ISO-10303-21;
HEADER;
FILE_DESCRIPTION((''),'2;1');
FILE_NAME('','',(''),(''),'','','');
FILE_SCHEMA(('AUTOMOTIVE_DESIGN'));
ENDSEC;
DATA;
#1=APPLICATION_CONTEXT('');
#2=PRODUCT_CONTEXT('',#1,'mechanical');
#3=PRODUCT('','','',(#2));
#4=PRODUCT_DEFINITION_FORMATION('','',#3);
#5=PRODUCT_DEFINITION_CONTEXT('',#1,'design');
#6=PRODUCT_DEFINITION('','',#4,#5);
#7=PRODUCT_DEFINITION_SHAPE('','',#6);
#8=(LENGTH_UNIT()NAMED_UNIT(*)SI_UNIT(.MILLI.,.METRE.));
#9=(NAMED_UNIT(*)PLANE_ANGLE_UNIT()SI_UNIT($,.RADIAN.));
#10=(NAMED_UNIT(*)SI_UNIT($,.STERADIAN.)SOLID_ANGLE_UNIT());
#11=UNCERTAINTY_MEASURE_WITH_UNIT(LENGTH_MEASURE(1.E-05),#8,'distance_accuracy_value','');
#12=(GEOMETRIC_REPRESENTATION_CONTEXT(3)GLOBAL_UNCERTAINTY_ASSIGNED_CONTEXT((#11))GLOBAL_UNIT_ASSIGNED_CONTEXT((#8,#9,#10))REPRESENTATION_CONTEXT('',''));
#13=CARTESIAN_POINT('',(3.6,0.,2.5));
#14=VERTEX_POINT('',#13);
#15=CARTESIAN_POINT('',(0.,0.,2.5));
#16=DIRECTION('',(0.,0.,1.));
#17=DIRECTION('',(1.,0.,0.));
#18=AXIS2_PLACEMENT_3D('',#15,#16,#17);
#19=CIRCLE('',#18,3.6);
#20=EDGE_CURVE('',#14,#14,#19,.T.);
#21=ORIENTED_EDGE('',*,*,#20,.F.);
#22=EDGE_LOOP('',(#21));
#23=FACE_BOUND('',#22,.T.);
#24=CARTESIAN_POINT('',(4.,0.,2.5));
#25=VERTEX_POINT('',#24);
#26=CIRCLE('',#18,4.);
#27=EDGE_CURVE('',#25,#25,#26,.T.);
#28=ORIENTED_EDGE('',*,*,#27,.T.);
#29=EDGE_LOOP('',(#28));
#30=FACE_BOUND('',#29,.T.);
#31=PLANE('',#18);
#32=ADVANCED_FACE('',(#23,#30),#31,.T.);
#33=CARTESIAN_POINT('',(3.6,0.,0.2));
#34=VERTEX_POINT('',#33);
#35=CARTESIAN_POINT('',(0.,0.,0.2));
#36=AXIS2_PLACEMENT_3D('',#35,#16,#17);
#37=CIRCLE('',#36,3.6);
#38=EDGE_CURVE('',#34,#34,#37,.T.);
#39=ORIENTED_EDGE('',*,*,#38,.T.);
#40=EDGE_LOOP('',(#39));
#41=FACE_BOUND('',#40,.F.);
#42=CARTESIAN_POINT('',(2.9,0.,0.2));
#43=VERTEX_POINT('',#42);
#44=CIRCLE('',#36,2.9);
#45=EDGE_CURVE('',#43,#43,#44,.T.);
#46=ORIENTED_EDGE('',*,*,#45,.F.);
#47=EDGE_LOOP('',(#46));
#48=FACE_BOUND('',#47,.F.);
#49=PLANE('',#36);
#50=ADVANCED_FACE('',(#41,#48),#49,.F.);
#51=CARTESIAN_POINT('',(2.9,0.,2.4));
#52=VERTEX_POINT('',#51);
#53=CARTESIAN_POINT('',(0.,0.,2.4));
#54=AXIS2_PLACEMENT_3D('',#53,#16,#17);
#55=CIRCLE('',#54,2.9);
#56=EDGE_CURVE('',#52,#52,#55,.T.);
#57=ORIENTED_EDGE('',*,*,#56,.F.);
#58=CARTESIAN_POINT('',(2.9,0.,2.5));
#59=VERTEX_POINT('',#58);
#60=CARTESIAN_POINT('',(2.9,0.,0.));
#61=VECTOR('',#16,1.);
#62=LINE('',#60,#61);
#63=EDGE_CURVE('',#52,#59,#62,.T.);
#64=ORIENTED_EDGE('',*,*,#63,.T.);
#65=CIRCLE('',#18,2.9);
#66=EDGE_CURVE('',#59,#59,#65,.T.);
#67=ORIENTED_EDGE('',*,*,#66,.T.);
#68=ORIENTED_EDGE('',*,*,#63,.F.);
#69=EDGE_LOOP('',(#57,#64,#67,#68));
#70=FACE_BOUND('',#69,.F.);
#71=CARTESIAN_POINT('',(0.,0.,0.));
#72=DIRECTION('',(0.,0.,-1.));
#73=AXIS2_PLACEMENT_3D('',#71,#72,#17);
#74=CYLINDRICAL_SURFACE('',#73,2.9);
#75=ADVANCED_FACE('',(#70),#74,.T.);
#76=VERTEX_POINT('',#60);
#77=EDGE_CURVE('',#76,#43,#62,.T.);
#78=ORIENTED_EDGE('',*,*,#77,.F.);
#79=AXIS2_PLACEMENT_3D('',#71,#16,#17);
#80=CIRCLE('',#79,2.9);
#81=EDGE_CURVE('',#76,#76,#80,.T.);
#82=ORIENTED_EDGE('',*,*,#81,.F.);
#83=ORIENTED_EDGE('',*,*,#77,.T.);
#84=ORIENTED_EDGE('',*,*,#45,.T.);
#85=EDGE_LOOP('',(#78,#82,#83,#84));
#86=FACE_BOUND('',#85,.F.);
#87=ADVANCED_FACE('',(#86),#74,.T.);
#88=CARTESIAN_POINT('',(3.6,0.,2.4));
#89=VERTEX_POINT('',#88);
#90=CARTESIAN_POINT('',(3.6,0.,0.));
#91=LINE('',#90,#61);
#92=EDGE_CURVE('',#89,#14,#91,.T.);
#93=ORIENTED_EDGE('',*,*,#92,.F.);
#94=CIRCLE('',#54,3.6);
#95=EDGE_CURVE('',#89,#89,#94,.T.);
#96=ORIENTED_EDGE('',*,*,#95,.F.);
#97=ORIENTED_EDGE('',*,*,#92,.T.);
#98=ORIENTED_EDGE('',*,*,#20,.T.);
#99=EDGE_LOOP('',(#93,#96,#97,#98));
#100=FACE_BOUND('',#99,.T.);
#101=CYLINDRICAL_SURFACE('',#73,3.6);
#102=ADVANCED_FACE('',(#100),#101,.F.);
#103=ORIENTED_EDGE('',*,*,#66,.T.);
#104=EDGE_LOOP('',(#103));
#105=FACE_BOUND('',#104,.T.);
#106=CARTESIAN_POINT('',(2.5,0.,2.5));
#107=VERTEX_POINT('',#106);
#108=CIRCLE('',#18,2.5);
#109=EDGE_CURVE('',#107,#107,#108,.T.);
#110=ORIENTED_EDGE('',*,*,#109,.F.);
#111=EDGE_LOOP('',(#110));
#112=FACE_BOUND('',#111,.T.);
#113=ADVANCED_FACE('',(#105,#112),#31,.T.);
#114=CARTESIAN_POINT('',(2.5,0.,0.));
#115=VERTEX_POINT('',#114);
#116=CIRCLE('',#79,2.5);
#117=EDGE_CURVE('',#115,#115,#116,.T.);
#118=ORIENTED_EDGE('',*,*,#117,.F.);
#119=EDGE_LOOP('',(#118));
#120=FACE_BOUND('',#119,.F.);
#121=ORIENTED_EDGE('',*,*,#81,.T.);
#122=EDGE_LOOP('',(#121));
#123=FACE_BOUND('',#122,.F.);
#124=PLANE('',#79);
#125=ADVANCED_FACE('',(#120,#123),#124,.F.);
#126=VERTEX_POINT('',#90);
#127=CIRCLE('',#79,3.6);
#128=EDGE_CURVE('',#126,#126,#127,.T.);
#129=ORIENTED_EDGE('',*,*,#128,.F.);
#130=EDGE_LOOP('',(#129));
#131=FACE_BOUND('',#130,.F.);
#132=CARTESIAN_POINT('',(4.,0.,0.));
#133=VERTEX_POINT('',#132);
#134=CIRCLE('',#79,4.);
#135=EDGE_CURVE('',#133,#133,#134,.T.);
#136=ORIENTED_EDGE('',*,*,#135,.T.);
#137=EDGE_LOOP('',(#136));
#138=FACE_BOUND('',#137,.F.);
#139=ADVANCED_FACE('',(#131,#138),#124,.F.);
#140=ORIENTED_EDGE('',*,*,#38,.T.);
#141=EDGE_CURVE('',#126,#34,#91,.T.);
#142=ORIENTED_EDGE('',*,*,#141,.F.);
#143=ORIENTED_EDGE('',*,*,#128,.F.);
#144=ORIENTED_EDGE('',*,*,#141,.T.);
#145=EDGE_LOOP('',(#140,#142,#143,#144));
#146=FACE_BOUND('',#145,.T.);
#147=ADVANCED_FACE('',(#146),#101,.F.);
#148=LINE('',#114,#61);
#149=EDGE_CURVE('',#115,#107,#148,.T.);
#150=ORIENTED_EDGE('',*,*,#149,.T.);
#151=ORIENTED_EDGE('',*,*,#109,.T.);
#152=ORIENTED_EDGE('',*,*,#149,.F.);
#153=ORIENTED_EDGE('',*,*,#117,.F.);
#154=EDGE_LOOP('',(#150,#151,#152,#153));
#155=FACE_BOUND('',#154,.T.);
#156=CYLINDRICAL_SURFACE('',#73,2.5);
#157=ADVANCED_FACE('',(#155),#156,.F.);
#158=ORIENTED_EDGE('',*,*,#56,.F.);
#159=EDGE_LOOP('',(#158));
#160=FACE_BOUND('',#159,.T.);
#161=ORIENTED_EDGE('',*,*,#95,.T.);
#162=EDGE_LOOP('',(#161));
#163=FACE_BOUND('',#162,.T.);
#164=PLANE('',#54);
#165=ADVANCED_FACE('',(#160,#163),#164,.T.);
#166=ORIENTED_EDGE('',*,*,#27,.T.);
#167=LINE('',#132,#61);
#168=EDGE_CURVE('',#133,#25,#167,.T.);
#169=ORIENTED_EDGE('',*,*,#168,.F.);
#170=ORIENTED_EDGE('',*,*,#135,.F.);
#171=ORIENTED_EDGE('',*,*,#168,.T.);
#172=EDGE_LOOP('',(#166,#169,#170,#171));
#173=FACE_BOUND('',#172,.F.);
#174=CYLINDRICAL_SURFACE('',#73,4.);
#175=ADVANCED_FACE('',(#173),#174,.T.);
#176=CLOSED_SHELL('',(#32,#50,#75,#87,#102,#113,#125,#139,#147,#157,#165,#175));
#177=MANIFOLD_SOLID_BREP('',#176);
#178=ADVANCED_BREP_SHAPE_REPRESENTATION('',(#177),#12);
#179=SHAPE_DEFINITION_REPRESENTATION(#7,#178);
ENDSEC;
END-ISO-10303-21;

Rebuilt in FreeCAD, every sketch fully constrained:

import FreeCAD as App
import Part
import Sketcher

doc = App.newDocument("Part")
body = doc.addObject("PartDesign::Body", "Body")
body.AllowCompound = True

sketch1 = body.newObject("Sketcher::SketchObject", "Sketch")
sketch1.AttachmentSupport = (doc.getObject("XY_Plane"), [""])
sketch1.MapMode = "FlatFace"
sketch1.addGeometry([
    Part.Circle(App.Vector(0, 0, 0), App.Vector(0, 0, 1), 4),
    Part.Circle(App.Vector(0, 0, 0), App.Vector(0, 0, 1), 3.6),
    Part.Circle(App.Vector(0, 0, 0), App.Vector(0, 0, 1), 2.9),
    Part.Circle(App.Vector(0, 0, 0), App.Vector(0, 0, 1), 2.5),
], False)
sketch1.addConstraint([
    Sketcher.Constraint("Coincident", 0, 3, -1, 1),
    Sketcher.Constraint("Coincident", 1, 3, -1, 1),
    Sketcher.Constraint("Coincident", 2, 3, -1, 1),
    Sketcher.Constraint("Coincident", 3, 3, -1, 1),
    Sketcher.Constraint("Diameter", 0, 8.0),
    Sketcher.Constraint("Diameter", 3, 5.0),
    Sketcher.Constraint("Diameter", 1, 7.2),
    Sketcher.Constraint("Diameter", 2, 5.8),
])
pad1 = body.newObject("PartDesign::Pad", "Pad")
pad1.Profile = sketch1
pad1.Length = 2.5

sketch2 = body.newObject("Sketcher::SketchObject", "Sketch001")
sketch2.AttachmentSupport = (doc.getObject("XY_Plane"), [""])
sketch2.MapMode = "FlatFace"
sketch2.AttachmentOffset = App.Placement(App.Vector(0, 0, 0.2), App.Rotation())
sketch2.addGeometry([
    Part.Circle(App.Vector(0, 0, 0), App.Vector(0, 0, 1), 3.6),
    Part.Circle(App.Vector(0, 0, 0), App.Vector(0, 0, 1), 2.9),
], False)
sketch2.addConstraint([
    Sketcher.Constraint("Coincident", 0, 3, -1, 1),
    Sketcher.Constraint("Coincident", 1, 3, -1, 1),
    Sketcher.Constraint("Diameter", 0, 7.2),
    Sketcher.Constraint("Diameter", 1, 5.8),
])
pad2 = body.newObject("PartDesign::Pad", "Pad001")
pad2.Profile = sketch2
pad2.Length = 2.2

doc.recompute()
